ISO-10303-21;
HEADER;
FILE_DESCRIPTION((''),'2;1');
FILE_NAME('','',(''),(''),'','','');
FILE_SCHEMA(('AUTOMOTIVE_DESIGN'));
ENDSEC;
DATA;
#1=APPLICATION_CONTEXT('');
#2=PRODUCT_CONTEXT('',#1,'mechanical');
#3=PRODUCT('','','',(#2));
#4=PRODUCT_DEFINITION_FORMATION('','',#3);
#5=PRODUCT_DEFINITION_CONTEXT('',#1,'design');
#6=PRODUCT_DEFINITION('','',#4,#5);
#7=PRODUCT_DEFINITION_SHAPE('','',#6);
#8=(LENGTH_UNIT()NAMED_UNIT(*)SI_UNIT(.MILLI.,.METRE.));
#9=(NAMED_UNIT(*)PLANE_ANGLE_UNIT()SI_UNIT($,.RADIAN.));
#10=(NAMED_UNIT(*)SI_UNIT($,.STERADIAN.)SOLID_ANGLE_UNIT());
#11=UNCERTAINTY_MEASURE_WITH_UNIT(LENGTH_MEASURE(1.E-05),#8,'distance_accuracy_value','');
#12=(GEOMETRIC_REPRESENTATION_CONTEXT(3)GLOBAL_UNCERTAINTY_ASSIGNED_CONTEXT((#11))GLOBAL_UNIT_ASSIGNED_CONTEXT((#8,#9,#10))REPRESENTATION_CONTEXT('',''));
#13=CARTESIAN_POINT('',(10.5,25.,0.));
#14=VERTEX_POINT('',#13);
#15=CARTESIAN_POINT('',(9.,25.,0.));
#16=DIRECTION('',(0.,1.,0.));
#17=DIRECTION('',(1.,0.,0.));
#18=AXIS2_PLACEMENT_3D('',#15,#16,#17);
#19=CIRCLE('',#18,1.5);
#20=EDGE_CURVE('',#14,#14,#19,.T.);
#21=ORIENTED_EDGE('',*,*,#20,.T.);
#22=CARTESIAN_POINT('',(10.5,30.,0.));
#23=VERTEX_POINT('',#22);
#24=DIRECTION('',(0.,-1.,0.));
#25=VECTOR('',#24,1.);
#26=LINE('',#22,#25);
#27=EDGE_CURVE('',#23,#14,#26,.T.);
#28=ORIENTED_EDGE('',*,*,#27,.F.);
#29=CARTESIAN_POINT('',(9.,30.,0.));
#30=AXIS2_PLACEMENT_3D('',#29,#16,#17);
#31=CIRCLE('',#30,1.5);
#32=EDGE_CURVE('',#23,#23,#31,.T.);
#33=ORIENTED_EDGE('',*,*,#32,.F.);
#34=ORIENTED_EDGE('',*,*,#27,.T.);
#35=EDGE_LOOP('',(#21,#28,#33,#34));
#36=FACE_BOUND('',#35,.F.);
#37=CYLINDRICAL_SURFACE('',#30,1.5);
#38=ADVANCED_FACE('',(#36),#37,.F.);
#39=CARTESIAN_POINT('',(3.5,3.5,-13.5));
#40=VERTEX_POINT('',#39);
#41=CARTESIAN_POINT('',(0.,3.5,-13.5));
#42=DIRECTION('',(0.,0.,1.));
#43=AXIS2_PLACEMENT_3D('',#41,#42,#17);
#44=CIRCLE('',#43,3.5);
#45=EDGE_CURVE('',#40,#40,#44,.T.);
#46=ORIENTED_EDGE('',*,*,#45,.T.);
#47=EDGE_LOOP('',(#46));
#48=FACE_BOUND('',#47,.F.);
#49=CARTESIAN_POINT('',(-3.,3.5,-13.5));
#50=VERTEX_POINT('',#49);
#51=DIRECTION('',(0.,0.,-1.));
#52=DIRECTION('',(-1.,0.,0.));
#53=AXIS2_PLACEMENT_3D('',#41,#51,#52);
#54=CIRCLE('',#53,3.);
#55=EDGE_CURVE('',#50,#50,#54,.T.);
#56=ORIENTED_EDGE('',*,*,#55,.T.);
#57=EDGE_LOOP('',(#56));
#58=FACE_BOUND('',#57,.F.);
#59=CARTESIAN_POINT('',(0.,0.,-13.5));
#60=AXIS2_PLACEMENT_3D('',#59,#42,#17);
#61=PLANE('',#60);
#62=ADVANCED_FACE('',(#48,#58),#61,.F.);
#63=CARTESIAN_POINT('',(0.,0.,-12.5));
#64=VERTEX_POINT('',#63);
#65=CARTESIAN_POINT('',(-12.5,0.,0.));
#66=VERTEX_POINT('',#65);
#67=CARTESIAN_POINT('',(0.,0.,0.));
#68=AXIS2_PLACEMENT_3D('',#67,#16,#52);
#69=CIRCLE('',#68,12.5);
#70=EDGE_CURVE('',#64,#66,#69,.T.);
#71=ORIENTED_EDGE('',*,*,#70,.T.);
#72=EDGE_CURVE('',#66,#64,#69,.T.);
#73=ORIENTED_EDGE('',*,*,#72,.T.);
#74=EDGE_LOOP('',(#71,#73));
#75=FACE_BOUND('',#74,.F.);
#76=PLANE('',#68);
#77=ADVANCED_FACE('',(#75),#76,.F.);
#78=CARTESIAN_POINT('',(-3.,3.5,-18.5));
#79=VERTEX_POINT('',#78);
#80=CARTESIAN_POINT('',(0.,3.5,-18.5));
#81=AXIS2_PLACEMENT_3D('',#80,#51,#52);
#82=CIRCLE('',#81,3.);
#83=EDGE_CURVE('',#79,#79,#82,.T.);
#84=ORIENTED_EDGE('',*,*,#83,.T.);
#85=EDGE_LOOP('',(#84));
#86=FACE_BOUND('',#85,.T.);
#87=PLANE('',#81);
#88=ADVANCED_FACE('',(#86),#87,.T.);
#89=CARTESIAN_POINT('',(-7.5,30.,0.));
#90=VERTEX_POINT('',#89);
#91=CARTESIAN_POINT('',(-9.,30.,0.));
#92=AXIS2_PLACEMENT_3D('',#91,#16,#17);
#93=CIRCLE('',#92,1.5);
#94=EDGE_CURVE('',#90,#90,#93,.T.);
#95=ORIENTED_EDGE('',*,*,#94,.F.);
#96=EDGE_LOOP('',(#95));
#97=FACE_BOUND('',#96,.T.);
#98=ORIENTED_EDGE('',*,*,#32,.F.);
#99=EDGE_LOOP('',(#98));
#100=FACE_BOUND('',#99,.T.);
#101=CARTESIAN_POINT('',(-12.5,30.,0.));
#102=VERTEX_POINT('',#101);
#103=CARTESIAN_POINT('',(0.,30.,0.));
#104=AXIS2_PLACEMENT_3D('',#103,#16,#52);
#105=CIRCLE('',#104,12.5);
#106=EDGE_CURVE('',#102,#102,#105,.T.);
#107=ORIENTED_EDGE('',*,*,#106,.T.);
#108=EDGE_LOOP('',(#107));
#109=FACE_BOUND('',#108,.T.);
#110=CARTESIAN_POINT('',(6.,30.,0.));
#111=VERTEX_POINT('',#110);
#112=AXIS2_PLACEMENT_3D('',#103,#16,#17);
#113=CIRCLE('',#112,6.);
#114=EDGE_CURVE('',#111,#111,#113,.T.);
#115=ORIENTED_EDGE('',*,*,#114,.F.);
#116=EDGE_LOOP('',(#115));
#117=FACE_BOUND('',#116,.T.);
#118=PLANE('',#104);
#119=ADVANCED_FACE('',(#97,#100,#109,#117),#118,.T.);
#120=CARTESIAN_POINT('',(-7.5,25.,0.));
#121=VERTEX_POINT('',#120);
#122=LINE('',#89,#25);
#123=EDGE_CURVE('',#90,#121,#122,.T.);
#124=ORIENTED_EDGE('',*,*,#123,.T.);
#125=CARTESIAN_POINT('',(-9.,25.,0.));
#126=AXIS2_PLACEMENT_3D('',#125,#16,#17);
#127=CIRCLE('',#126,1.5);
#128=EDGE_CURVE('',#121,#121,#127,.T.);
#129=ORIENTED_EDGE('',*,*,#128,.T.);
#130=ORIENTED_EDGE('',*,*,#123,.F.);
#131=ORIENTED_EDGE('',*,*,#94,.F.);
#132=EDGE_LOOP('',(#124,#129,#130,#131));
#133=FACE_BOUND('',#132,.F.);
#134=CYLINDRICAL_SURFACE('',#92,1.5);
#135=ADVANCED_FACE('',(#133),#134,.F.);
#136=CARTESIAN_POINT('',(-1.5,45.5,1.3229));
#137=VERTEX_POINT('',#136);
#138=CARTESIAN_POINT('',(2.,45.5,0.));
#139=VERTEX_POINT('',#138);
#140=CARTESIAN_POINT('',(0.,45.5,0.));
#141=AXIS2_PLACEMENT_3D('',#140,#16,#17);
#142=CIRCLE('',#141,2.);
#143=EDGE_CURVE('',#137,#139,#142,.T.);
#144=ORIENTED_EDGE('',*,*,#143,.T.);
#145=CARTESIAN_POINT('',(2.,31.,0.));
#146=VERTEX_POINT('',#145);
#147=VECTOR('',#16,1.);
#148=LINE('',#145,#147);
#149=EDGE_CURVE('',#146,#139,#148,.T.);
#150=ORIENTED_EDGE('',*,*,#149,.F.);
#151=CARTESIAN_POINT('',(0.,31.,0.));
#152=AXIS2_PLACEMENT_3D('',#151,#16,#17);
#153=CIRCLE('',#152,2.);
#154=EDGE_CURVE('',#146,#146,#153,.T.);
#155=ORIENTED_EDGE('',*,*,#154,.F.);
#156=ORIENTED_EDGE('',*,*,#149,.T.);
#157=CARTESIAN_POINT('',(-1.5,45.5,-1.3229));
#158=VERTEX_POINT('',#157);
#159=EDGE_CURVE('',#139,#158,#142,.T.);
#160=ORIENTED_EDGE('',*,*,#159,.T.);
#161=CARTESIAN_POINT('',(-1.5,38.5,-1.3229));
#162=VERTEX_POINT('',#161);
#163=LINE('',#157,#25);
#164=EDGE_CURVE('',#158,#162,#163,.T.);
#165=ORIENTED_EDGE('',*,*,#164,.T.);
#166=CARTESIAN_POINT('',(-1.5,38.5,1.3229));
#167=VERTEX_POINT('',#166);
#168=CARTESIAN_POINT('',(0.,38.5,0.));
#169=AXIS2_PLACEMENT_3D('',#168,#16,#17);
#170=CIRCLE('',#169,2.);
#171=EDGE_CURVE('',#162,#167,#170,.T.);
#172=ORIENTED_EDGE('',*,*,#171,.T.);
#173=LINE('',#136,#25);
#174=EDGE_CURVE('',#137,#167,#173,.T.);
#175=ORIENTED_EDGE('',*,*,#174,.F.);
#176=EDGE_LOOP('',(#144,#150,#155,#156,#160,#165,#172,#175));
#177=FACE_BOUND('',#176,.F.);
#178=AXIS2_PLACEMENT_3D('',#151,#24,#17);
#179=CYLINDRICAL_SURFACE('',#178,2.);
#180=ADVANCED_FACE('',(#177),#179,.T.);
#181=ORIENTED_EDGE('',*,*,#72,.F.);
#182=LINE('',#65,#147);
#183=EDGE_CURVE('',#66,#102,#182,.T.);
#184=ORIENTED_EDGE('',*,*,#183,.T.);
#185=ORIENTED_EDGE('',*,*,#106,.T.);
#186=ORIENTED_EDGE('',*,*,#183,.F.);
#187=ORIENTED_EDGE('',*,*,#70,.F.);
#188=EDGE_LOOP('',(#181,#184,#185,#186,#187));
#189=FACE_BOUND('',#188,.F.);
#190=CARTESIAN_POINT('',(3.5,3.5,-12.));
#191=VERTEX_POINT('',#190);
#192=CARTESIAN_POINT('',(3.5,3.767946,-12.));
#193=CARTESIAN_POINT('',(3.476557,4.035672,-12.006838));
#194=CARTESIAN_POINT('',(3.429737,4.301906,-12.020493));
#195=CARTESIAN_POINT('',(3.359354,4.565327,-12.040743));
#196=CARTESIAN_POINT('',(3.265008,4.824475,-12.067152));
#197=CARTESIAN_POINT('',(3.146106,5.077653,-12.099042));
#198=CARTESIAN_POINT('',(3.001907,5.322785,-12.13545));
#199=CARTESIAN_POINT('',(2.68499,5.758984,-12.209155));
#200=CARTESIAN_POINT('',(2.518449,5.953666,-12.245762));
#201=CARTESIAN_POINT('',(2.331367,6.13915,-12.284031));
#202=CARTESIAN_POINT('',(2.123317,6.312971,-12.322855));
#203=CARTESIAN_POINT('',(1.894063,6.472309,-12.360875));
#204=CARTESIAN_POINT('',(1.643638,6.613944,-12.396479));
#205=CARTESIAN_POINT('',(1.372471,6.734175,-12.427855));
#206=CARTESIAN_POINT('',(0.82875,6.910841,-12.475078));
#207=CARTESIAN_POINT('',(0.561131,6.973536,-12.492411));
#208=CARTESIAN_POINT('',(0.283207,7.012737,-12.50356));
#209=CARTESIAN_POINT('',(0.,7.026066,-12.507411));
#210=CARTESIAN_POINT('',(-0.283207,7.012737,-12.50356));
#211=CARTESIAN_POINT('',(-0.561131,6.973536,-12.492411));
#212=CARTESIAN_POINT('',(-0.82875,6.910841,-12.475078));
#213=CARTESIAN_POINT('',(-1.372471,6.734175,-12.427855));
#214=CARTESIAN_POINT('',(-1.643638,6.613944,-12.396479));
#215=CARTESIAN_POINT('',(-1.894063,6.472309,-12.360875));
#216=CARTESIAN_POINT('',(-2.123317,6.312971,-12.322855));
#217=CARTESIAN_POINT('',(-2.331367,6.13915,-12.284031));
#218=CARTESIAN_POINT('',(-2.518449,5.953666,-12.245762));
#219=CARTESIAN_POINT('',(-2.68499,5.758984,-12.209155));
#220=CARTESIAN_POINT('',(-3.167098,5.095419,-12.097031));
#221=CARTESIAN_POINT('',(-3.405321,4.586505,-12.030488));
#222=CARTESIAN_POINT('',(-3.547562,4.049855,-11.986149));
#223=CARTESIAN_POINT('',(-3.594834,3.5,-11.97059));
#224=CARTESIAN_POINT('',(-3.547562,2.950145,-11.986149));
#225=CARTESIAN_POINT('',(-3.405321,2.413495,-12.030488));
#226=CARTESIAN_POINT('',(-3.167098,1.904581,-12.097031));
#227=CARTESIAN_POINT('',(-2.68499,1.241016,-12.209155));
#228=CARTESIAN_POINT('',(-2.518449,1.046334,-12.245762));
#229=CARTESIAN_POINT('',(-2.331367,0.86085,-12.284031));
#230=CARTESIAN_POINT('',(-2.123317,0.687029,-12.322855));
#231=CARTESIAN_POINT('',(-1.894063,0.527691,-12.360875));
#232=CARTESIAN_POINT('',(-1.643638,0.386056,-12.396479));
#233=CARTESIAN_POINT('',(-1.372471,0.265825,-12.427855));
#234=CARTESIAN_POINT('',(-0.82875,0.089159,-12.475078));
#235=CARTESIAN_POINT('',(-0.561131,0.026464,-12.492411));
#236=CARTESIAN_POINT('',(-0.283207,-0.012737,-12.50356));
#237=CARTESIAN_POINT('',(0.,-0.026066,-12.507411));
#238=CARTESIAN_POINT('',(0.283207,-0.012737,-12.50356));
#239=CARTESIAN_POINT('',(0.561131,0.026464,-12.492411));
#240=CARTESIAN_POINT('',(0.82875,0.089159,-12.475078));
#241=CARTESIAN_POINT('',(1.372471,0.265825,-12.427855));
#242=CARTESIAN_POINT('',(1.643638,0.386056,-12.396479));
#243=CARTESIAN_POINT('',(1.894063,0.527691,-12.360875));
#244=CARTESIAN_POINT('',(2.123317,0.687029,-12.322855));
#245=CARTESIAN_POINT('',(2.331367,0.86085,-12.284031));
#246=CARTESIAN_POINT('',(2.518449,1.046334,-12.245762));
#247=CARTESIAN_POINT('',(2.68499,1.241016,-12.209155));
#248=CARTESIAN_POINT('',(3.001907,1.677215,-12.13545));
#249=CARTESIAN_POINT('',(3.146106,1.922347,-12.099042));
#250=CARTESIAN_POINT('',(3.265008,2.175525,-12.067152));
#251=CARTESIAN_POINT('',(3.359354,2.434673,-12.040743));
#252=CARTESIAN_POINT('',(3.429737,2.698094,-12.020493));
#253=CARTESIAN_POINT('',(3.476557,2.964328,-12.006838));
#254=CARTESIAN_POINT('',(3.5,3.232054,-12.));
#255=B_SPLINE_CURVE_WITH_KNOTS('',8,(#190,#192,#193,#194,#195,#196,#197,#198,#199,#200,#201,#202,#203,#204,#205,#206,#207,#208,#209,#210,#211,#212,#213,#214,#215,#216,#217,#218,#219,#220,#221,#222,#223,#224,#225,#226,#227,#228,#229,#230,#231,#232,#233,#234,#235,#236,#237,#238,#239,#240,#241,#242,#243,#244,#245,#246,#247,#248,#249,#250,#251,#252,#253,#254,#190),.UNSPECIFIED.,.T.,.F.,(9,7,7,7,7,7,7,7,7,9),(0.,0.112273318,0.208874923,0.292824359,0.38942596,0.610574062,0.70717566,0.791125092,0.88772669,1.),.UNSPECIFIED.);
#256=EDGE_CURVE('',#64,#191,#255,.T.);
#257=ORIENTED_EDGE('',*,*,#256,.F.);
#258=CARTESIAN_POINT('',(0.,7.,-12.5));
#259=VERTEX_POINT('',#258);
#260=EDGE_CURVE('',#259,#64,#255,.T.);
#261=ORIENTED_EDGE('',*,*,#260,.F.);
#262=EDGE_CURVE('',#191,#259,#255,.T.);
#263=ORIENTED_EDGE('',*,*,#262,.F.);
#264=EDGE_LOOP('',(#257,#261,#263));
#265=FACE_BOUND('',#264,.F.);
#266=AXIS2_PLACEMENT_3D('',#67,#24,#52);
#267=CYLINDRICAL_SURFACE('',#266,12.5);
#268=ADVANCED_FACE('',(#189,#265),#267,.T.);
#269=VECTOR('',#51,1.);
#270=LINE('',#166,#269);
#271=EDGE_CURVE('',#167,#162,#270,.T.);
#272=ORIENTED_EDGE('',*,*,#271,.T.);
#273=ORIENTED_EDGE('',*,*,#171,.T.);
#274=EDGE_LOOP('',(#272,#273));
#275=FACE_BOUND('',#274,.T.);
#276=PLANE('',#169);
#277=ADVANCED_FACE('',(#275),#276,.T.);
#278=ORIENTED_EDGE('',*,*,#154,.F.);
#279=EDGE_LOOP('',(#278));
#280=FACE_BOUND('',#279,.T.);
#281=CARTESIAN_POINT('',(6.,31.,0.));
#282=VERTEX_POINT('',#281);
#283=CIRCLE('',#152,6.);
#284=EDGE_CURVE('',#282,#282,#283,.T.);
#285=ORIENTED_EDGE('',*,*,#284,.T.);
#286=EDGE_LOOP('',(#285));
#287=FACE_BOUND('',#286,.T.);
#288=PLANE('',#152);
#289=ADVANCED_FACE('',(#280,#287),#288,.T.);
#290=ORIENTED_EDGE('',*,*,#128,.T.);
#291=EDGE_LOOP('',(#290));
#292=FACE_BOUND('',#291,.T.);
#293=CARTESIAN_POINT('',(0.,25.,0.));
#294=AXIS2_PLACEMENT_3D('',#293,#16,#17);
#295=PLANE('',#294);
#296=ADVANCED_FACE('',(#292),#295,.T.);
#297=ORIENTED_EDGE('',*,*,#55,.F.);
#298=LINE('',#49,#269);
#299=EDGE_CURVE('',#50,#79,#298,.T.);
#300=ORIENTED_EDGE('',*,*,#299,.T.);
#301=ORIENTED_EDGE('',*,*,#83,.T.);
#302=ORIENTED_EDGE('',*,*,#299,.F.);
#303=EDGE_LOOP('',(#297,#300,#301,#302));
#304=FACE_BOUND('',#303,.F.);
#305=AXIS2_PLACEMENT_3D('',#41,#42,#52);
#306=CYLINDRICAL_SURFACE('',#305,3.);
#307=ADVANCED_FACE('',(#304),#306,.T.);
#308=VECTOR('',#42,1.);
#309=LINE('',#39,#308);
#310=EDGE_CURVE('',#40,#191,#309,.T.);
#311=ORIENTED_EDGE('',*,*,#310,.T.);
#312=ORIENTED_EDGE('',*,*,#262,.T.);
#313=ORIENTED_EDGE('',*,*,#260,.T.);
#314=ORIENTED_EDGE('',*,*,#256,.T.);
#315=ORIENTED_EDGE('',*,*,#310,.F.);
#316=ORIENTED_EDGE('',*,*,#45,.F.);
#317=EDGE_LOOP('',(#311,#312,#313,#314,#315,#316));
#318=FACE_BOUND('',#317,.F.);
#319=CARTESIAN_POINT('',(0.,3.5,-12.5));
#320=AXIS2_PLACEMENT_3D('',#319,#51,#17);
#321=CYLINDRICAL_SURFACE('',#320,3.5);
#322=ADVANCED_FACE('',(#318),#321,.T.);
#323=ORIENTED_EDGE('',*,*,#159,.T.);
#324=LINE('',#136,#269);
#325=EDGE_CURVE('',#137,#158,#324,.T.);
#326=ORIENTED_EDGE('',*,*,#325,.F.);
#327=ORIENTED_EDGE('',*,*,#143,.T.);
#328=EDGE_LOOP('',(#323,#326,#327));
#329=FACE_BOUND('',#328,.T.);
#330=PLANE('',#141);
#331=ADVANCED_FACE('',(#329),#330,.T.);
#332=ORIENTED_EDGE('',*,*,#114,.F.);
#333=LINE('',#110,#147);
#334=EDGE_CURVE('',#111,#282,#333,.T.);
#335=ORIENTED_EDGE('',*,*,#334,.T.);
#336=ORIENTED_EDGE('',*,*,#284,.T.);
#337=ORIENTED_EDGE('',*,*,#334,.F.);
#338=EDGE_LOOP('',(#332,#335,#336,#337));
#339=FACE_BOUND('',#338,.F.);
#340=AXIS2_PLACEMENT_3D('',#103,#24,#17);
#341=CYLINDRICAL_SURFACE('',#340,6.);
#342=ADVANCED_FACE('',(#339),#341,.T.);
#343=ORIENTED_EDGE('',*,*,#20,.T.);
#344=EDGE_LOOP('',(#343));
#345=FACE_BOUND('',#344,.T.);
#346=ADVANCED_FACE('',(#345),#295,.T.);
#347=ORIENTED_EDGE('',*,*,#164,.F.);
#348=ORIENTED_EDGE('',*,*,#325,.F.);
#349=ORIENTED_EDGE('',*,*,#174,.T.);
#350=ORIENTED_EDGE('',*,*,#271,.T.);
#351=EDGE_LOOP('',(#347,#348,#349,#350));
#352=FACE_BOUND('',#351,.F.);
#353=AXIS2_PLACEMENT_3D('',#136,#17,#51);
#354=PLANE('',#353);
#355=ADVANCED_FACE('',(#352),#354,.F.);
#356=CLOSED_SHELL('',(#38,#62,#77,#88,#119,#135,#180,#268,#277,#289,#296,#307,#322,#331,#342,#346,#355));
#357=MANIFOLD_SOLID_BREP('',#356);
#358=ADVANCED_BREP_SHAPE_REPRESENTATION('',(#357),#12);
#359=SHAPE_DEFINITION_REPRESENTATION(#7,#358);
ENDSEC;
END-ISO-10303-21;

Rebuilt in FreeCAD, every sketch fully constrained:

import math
import FreeCAD as App
import Part
import Sketcher
from FreeCAD import Vector

doc = App.newDocument("Part")
body = doc.addObject("PartDesign::Body", "Body")

# Sketch on XZ plane
sketch1 = body.newObject("Sketcher::SketchObject", "Sketch")
sketch1.AttachmentSupport = (doc.getObject("XZ_Plane"), [""])
sketch1.MapMode = "FlatFace"
sketch1.addGeometry(Part.Circle(Vector(0, 0, 0), Vector(0, 0, 1), 12), False)
sketch1.addConstraint(Sketcher.Constraint("Coincident", 0, 3, -1, 1))
sketch1.addConstraint(Sketcher.Constraint("Diameter", 0, 25.0))
pad1 = body.newObject("PartDesign::Pad", "Pad")
pad1.Profile = sketch1
pad1.Length = 30
pad1.Reversed = True

# Sketch on XZ plane
sketch2 = body.newObject("Sketcher::SketchObject", "Sketch001")
sketch2.AttachmentSupport = (doc.getObject("XZ_Plane"), [""])
sketch2.MapMode = "FlatFace"
sketch2.AttachmentOffset = App.Placement(Vector(0, 0, -30), App.Rotation())
sketch2.addGeometry(Part.Circle(Vector(0, 0, 0), Vector(0, 0, 1), 6), False)
sketch2.addConstraint(Sketcher.Constraint("Coincident", 0, 3, -1, 1))
sketch2.addConstraint(Sketcher.Constraint("Diameter", 0, 12.0))
pad2 = body.newObject("PartDesign::Pad", "Pad001")
pad2.Profile = sketch2
pad2.Length = 1
pad2.Reversed = True

# Sketch on XZ plane
sketch3 = body.newObject("Sketcher::SketchObject", "Sketch002")
sketch3.AttachmentSupport = (doc.getObject("XZ_Plane"), [""])
sketch3.MapMode = "FlatFace"
sketch3.AttachmentOffset = App.Placement(Vector(0, 0, -31), App.Rotation())
sketch3.addGeometry(Part.Circle(Vector(0, 0, 0), Vector(0, 0, 1), 2), False)
sketch3.addConstraint(Sketcher.Constraint("Coincident", 0, 3, -1, 1))
sketch3.addConstraint(Sketcher.Constraint("Diameter", 0, 4.0))
pad3 = body.newObject("PartDesign::Pad", "Pad002")
pad3.Profile = sketch3
pad3.Length = 14.5
pad3.Reversed = True

# Sketch on XZ plane
sketch4 = body.newObject("Sketcher::SketchObject", "Sketch003")
sketch4.AttachmentSupport = (doc.getObject("XZ_Plane"), [""])
sketch4.MapMode = "FlatFace"
sketch4.AttachmentOffset = App.Placement(Vector(0, 0, -45.5), App.Rotation())
sketch4.addGeometry(Part.LineSegment(Vector(-1.5, 1.3, 0), Vector(-1.5, -1.3, 0)), False)
sketch4.addGeometry(Part.ArcOfCircle(Part.Circle(Vector(0, 0, 0), Vector(0, 0, 1), 2), math.radians(139), math.radians(221)), False)
sketch4.addConstraint(Sketcher.Constraint("Coincident", 0, 1, 1, 1))
sketch4.addConstraint(Sketcher.Constraint("Coincident", 1, 2, 0, 2))
sketch4.addConstraint(Sketcher.Constraint("Vertical", 0))
sketch4.addConstraint(Sketcher.Constraint("Coincident", 1, 3, -1, 1))
sketch4.addConstraint(Sketcher.Constraint("Radius", 1, 2.0))
sketch4.addConstraint(Sketcher.Constraint("DistanceX", 0, 1, -1, 1, 1.5))
pocket1 = body.newObject("PartDesign::Pocket", "Pocket")
pocket1.Profile = sketch4
pocket1.Length = 7
pocket1.Reversed = True

# Sketch on XY plane
sketch5 = body.newObject("Sketcher::SketchObject", "Sketch004")
sketch5.AttachmentSupport = (doc.getObject("XY_Plane"), [""])
sketch5.MapMode = "FlatFace"
sketch5.AttachmentOffset = App.Placement(Vector(0, 0, -12.5), App.Rotation())
sketch5.addGeometry(Part.Circle(Vector(0, 3.5, 0), Vector(0, 0, 1), 3.5), False)
sketch5.addConstraint(Sketcher.Constraint("PointOnObject", 0, 3, -2))
sketch5.addConstraint(Sketcher.Constraint("Diameter", 0, 7.0))
sketch5.addConstraint(Sketcher.Constraint("DistanceY", -1, 1, 0, 3, 3.5))
pad4 = body.newObject("PartDesign::Pad", "Pad003")
pad4.Profile = sketch5
pad4.Length = 2
pad4.Midplane = True

# Sketch on XY plane
sketch6 = body.newObject("Sketcher::SketchObject", "Sketch005")
sketch6.AttachmentSupport = (doc.getObject("XY_Plane"), [""])
sketch6.MapMode = "FlatFace"
sketch6.AttachmentOffset = App.Placement(Vector(0, 0, -13.5), App.Rotation())
sketch6.addGeometry(Part.Circle(Vector(0, 3.5, 0), Vector(0, 0, 1), 3), False)
sketch6.addConstraint(Sketcher.Constraint("PointOnObject", 0, 3, -2))
sketch6.addConstraint(Sketcher.Constraint("Diameter", 0, 6.0))
sketch6.addConstraint(Sketcher.Constraint("DistanceY", -1, 1, 0, 3, 3.5))
pad5 = body.newObject("PartDesign::Pad", "Pad004")
pad5.Profile = sketch6
pad5.Length = 5
pad5.Reversed = True

# Sketch on XZ plane
sketch7 = body.newObject("Sketcher::SketchObject", "Sketch006")
sketch7.AttachmentSupport = (doc.getObject("XZ_Plane"), [""])
sketch7.MapMode = "FlatFace"
sketch7.AttachmentOffset = App.Placement(Vector(0, 0, -30), App.Rotation())
sketch7.addGeometry(Part.Circle(Vector(-9, 0, 0), Vector(0, 0, 1), 1.5), False)
sketch7.addGeometry(Part.Circle(Vector(9, 0, 0), Vector(0, 0, 1), 1.5), False)
sketch7.addConstraint(Sketcher.Constraint("Equal", 0, 1))
sketch7.addConstraint(Sketcher.Constraint("Symmetric", 0, 3, 1, 3, -1, 1))
sketch7.addConstraint(Sketcher.Constraint("PointOnObject", 0, 3, -1))
sketch7.addConstraint(Sketcher.Constraint("Diameter", 0, 3.0))
sketch7.addConstraint(Sketcher.Constraint("DistanceX", 0, 3, -1, 1, 9.0))
pocket2 = body.newObject("PartDesign::Pocket", "Pocket001")
pocket2.Profile = sketch7
pocket2.Length = 5
pocket2.Reversed = True

doc.recompute()
